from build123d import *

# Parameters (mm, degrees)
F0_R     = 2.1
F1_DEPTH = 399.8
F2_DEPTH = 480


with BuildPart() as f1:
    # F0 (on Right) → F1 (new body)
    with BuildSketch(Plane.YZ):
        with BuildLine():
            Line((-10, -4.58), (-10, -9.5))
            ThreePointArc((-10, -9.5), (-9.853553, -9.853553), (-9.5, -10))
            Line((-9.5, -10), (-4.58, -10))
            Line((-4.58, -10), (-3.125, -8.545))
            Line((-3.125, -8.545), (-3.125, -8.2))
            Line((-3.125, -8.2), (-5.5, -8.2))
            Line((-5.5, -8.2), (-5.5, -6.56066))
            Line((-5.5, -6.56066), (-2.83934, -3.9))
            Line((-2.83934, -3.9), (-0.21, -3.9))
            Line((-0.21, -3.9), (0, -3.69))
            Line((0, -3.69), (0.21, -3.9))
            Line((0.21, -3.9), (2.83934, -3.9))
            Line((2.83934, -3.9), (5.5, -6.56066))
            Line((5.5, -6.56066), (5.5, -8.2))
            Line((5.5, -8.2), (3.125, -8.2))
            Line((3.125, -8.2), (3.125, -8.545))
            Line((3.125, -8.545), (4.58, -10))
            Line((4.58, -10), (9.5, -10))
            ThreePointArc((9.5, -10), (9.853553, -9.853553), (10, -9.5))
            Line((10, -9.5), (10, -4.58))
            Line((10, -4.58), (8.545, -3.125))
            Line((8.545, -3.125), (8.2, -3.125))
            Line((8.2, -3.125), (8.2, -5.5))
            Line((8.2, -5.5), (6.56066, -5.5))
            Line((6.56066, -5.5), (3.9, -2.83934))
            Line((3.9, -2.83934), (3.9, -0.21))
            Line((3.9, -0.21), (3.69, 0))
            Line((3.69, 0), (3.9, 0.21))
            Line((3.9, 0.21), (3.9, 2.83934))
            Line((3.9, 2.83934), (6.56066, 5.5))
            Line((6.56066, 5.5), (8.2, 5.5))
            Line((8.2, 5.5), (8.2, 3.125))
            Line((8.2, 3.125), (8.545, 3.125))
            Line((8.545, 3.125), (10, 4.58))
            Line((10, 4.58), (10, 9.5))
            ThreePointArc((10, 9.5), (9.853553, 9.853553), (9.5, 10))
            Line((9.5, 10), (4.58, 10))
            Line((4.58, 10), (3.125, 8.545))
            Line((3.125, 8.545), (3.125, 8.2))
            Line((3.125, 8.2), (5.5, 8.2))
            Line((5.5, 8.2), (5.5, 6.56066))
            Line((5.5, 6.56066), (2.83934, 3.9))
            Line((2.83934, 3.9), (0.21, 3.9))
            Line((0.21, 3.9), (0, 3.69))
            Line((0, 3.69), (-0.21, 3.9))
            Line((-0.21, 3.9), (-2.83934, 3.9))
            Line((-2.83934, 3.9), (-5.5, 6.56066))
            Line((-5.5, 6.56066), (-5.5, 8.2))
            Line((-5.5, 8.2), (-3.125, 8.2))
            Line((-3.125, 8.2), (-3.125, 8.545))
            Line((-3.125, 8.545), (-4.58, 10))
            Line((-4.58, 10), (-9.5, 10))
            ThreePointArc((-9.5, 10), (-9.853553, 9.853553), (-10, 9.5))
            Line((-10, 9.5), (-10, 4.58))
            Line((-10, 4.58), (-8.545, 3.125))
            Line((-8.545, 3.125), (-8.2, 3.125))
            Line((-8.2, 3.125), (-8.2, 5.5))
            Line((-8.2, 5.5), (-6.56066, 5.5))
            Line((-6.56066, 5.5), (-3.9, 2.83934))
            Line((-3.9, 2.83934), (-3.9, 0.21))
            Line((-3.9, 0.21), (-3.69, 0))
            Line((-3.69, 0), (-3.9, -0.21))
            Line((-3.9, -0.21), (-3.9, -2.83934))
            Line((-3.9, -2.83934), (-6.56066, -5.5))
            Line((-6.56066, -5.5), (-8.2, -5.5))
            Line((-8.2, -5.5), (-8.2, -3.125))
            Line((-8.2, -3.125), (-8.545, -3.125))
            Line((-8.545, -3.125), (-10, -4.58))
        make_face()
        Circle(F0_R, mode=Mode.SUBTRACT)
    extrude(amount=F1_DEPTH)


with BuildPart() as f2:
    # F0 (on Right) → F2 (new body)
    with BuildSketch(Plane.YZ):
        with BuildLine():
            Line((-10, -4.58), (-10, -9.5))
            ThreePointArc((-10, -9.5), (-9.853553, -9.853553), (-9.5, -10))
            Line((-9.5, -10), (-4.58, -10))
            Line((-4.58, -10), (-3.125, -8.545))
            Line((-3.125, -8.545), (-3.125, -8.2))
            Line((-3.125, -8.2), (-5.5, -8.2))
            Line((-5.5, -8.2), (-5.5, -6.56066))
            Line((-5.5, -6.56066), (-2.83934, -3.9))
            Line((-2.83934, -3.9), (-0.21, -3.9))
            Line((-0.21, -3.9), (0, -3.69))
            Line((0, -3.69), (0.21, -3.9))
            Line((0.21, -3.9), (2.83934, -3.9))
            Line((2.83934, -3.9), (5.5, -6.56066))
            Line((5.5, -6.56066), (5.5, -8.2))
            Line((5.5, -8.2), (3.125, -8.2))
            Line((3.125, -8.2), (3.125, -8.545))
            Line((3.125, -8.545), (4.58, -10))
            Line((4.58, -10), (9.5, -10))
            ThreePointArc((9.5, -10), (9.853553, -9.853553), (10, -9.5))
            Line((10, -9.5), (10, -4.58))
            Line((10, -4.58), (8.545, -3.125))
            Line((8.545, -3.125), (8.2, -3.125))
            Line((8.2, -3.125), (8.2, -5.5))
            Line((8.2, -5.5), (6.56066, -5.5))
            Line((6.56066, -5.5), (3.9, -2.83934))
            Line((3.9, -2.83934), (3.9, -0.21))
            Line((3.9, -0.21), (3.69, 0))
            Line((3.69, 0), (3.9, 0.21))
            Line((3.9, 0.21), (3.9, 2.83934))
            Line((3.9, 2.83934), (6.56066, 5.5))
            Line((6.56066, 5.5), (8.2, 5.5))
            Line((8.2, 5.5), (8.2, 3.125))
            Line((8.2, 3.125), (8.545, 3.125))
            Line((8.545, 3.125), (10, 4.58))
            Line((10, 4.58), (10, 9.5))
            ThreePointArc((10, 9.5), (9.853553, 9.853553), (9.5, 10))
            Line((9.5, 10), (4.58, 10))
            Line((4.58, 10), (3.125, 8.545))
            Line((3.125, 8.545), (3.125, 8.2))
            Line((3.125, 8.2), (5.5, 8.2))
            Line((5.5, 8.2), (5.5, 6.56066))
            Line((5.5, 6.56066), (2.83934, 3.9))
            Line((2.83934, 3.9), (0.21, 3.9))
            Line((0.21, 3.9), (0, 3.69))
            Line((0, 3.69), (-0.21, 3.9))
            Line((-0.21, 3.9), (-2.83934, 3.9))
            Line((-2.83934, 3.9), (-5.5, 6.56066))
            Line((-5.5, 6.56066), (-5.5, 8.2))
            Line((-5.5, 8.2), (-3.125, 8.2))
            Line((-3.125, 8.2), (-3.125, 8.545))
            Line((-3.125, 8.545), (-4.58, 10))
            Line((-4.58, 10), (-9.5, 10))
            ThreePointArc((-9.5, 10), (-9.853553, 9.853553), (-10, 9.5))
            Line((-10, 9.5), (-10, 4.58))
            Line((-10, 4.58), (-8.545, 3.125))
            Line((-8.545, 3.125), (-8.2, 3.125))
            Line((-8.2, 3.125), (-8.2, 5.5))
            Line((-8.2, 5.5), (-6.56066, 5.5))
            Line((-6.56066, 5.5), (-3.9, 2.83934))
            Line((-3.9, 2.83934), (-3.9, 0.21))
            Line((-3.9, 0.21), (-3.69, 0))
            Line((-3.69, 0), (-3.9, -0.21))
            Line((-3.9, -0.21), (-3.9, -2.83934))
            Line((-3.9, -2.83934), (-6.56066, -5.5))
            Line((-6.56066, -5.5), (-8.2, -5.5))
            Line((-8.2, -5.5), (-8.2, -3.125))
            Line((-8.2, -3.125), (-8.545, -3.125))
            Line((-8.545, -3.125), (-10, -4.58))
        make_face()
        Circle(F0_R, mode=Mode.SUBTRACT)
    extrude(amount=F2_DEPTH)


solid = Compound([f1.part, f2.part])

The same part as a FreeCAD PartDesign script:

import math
import FreeCAD as App
import Part
import Sketcher

V = App.Vector
Q = App.Units.Quantity

doc = App.newDocument("Part")
body = doc.addObject("PartDesign::Body", "Body")

# Sketch on YZ plane
sketch1 = doc.addObject("Sketcher::SketchObject", "Sketch")
body.addObject(sketch1)
sketch1.AttachmentSupport = (doc.YZ_Plane, [""])
sketch1.MapMode = "FlatFace"
sketch1.addGeometry(Part.LineSegment(V(-10, -4.58, 0), V(-10, -9.5, 0)), False)
sketch1.addGeometry(Part.ArcOfCircle(Part.Circle(V(-9.5, -9.5, 0), V(0, 0, 1), 0.5), math.radians(-180), math.radians(-90)), False)
sketch1.addGeometry(Part.LineSegment(V(-9.5, -10, 0), V(-4.58, -10, 0)), False)
sketch1.addGeometry(Part.LineSegment(V(-4.58, -10, 0), V(-3.12, -8.54, 0)), False)
sketch1.addGeometry(Part.LineSegment(V(-3.12, -8.54, 0), V(-3.12, -8.2, 0)), False)
sketch1.addGeometry(Part.LineSegment(V(-3.12, -8.2, 0), V(-5.5, -8.2, 0)), False)
sketch1.addGeometry(Part.LineSegment(V(-5.5, -8.2, 0), V(-5.5, -6.56, 0)), False)
sketch1.addGeometry(Part.LineSegment(V(-5.5, -6.56, 0), V(-2.84, -3.9, 0)), False)
sketch1.addGeometry(Part.LineSegment(V(-2.84, -3.9, 0), V(-0.21, -3.9, 0)), False)
sketch1.addGeometry(Part.LineSegment(V(-0.21, -3.9, 0), V(0, -3.69, 0)), False)
sketch1.addGeometry(Part.LineSegment(V(0, -3.69, 0), V(0.21, -3.9, 0)), False)
sketch1.addGeometry(Part.LineSegment(V(0.21, -3.9, 0), V(2.84, -3.9, 0)), False)
sketch1.addGeometry(Part.LineSegment(V(2.84, -3.9, 0), V(5.5, -6.56, 0)), False)
sketch1.addGeometry(Part.LineSegment(V(5.5, -6.56, 0), V(5.5, -8.2, 0)), False)
sketch1.addGeometry(Part.LineSegment(V(5.5, -8.2, 0), V(3.12, -8.2, 0)), False)
sketch1.addGeometry(Part.LineSegment(V(3.12, -8.2, 0), V(3.12, -8.54, 0)), False)
sketch1.addGeometry(Part.LineSegment(V(3.12, -8.54, 0), V(4.58, -10, 0)), False)
sketch1.addGeometry(Part.LineSegment(V(4.58, -10, 0), V(9.5, -10, 0)), False)
sketch1.addGeometry(Part.ArcOfCircle(Part.Circle(V(9.5, -9.5, 0), V(0, 0, 1), 0.5), math.radians(-90), math.radians(0)), False)
sketch1.addGeometry(Part.LineSegment(V(10, -9.5, 0), V(10, -4.58, 0)), False)
sketch1.addGeometry(Part.LineSegment(V(10, -4.58, 0), V(8.54, -3.12, 0)), False)
sketch1.addGeometry(Part.LineSegment(V(8.54, -3.12, 0), V(8.2, -3.12, 0)), False)
sketch1.addGeometry(Part.LineSegment(V(8.2, -3.12, 0), V(8.2, -5.5, 0)), False)
sketch1.addGeometry(Part.LineSegment(V(8.2, -5.5, 0), V(6.56, -5.5, 0)), False)
sketch1.addGeometry(Part.LineSegment(V(6.56, -5.5, 0), V(3.9, -2.84, 0)), False)
sketch1.addGeometry(Part.LineSegment(V(3.9, -2.84, 0), V(3.9, -0.21, 0)), False)
sketch1.addGeometry(Part.LineSegment(V(3.9, -0.21, 0), V(3.69, 0, 0)), False)
sketch1.addGeometry(Part.LineSegment(V(3.69, 0, 0), V(3.9, 0.21, 0)), False)
sketch1.addGeometry(Part.LineSegment(V(3.9, 0.21, 0), V(3.9, 2.84, 0)), False)
sketch1.addGeometry(Part.LineSegment(V(3.9, 2.84, 0), V(6.56, 5.5, 0)), False)
sketch1.addGeometry(Part.LineSegment(V(6.56, 5.5, 0), V(8.2, 5.5, 0)), False)
sketch1.addGeometry(Part.LineSegment(V(8.2, 5.5, 0), V(8.2, 3.12, 0)), False)
sketch1.addGeometry(Part.LineSegment(V(8.2, 3.12, 0), V(8.54, 3.12, 0)), False)
sketch1.addGeometry(Part.LineSegment(V(8.54, 3.12, 0), V(10, 4.58, 0)), False)
sketch1.addGeometry(Part.LineSegment(V(10, 4.58, 0), V(10, 9.5, 0)), False)
sketch1.addGeometry(Part.ArcOfCircle(Part.Circle(V(9.5, 9.5, 0), V(0, 0, 1), 0.5), math.radians(0), math.radians(90)), False)
sketch1.addGeometry(Part.LineSegment(V(9.5, 10, 0), V(4.58, 10, 0)), False)
sketch1.addGeometry(Part.LineSegment(V(4.58, 10, 0), V(3.12, 8.54, 0)), False)
sketch1.addGeometry(Part.LineSegment(V(3.12, 8.54, 0), V(3.12, 8.2, 0)), False)
sketch1.addGeometry(Part.LineSegment(V(3.12, 8.2, 0), V(5.5, 8.2, 0)), False)
sketch1.addGeometry(Part.LineSegment(V(5.5, 8.2, 0), V(5.5, 6.56, 0)), False)
sketch1.addGeometry(Part.LineSegment(V(5.5, 6.56, 0), V(2.84, 3.9, 0)), False)
sketch1.addGeometry(Part.LineSegment(V(2.84, 3.9, 0), V(0.21, 3.9, 0)), False)
sketch1.addGeometry(Part.LineSegment(V(0.21, 3.9, 0), V(0, 3.69, 0)), False)
sketch1.addGeometry(Part.LineSegment(V(0, 3.69, 0), V(-0.21, 3.9, 0)), False)
sketch1.addGeometry(Part.LineSegment(V(-0.21, 3.9, 0), V(-2.84, 3.9, 0)), False)
sketch1.addGeometry(Part.LineSegment(V(-2.84, 3.9, 0), V(-5.5, 6.56, 0)), False)
sketch1.addGeometry(Part.LineSegment(V(-5.5, 6.56, 0), V(-5.5, 8.2, 0)), False)
sketch1.addGeometry(Part.LineSegment(V(-5.5, 8.2, 0), V(-3.12, 8.2, 0)), False)
sketch1.addGeometry(Part.LineSegment(V(-3.12, 8.2, 0), V(-3.12, 8.54, 0)), False)
sketch1.addGeometry(Part.LineSegment(V(-3.12, 8.54, 0), V(-4.58, 10, 0)), False)
sketch1.addGeometry(Part.LineSegment(V(-4.58, 10, 0), V(-9.5, 10, 0)), False)
sketch1.addGeometry(Part.ArcOfCircle(Part.Circle(V(-9.5, 9.5, 0), V(0, 0, 1), 0.5), math.radians(90), math.radians(180)), False)
sketch1.addGeometry(Part.LineSegment(V(-10, 9.5, 0), V(-10, 4.58, 0)), False)
sketch1.addGeometry(Part.LineSegment(V(-10, 4.58, 0), V(-8.54, 3.12, 0)), False)
sketch1.addGeometry(Part.LineSegment(V(-8.54, 3.12, 0), V(-8.2, 3.12, 0)), False)
sketch1.addGeometry(Part.LineSegment(V(-8.2, 3.12, 0), V(-8.2, 5.5, 0)), False)
sketch1.addGeometry(Part.LineSegment(V(-8.2, 5.5, 0), V(-6.56, 5.5, 0)), False)
sketch1.addGeometry(Part.LineSegment(V(-6.56, 5.5, 0), V(-3.9, 2.84, 0)), False)
sketch1.addGeometry(Part.LineSegment(V(-3.9, 2.84, 0), V(-3.9, 0.21, 0)), False)
sketch1.addGeometry(Part.LineSegment(V(-3.9, 0.21, 0), V(-3.69, 0, 0)), False)
sketch1.addGeometry(Part.LineSegment(V(-3.69, 0, 0), V(-3.9, -0.21, 0)), False)
sketch1.addGeometry(Part.LineSegment(V(-3.9, -0.21, 0), V(-3.9, -2.84, 0)), False)
sketch1.addGeometry(Part.LineSegment(V(-3.9, -2.84, 0), V(-6.56, -5.5, 0)), False)
sketch1.addGeometry(Part.LineSegment(V(-6.56, -5.5, 0), V(-8.2, -5.5, 0)), False)
sketch1.addGeometry(Part.LineSegment(V(-8.2, -5.5, 0), V(-8.2, -3.12, 0)), False)
sketch1.addGeometry(Part.LineSegment(V(-8.2, -3.12, 0), V(-8.54, -3.12, 0)), False)
sketch1.addGeometry(Part.LineSegment(V(-8.54, -3.12, 0), V(-10, -4.58, 0)), False)
sketch1.addGeometry(Part.Circle(V(0, 0, 0), V(0, 0, 1), 2.1), False)
sketch1.addConstraint(Sketcher.Constraint("Coincident", 0, 2, 1, 1))
sketch1.addConstraint(Sketcher.Constraint("Coincident", 1, 2, 2, 1))
sketch1.addConstraint(Sketcher.Constraint("Coincident", 2, 2, 3, 1))
sketch1.addConstraint(Sketcher.Constraint("Coincident", 3, 2, 4, 1))
sketch1.addConstraint(Sketcher.Constraint("Coincident", 4, 2, 5, 1))
sketch1.addConstraint(Sketcher.Constraint("Coincident", 5, 2, 6, 1))
sketch1.addConstraint(Sketcher.Constraint("Coincident", 6, 2, 7, 1))
sketch1.addConstraint(Sketcher.Constraint("Coincident", 7, 2, 8, 1))
sketch1.addConstraint(Sketcher.Constraint("Coincident", 8, 2, 9, 1))
sketch1.addConstraint(Sketcher.Constraint("Coincident", 9, 2, 10, 1))
sketch1.addConstraint(Sketcher.Constraint("Coincident", 10, 2, 11, 1))
sketch1.addConstraint(Sketcher.Constraint("Coincident", 11, 2, 12, 1))
sketch1.addConstraint(Sketcher.Constraint("Coincident", 12, 2, 13, 1))
sketch1.addConstraint(Sketcher.Constraint("Coincident", 13, 2, 14, 1))
sketch1.addConstraint(Sketcher.Constraint("Coincident", 14, 2, 15, 1))
sketch1.addConstraint(Sketcher.Constraint("Coincident", 15, 2, 16, 1))
sketch1.addConstraint(Sketcher.Constraint("Coincident", 16, 2, 17, 1))
sketch1.addConstraint(Sketcher.Constraint("Coincident", 17, 2, 18, 1))
sketch1.addConstraint(Sketcher.Constraint("Coincident", 18, 2, 19, 1))
sketch1.addConstraint(Sketcher.Constraint("Coincident", 19, 2, 20, 1))
sketch1.addConstraint(Sketcher.Constraint("Coincident", 20, 2, 21, 1))
sketch1.addConstraint(Sketcher.Constraint("Coincident", 21, 2, 22, 1))
sketch1.addConstraint(Sketcher.Constraint("Coincident", 22, 2, 23, 1))
sketch1.addConstraint(Sketcher.Constraint("Coincident", 23, 2, 24, 1))
sketch1.addConstraint(Sketcher.Constraint("Coincident", 24, 2, 25, 1))
sketch1.addConstraint(Sketcher.Constraint("Coincident", 25, 2, 26, 1))
sketch1.addConstraint(Sketcher.Constraint("Coincident", 26, 2, 27, 1))
sketch1.addConstraint(Sketcher.Constraint("Coincident", 27, 2, 28, 1))
sketch1.addConstraint(Sketcher.Constraint("Coincident", 28, 2, 29, 1))
sketch1.addConstraint(Sketcher.Constraint("Coincident", 29, 2, 30, 1))
sketch1.addConstraint(Sketcher.Constraint("Coincident", 30, 2, 31, 1))
sketch1.addConstraint(Sketcher.Constraint("Coincident", 31, 2, 32, 1))
sketch1.addConstraint(Sketcher.Constraint("Coincident", 32, 2, 33, 1))
sketch1.addConstraint(Sketcher.Constraint("Coincident", 33, 2, 34, 1))
sketch1.addConstraint(Sketcher.Constraint("Coincident", 34, 2, 35, 1))
sketch1.addConstraint(Sketcher.Constraint("Coincident", 35, 2, 36, 1))
sketch1.addConstraint(Sketcher.Constraint("Coincident", 36, 2, 37, 1))
sketch1.addConstraint(Sketcher.Constraint("Coincident", 37, 2, 38, 1))
sketch1.addConstraint(Sketcher.Constraint("Coincident", 38, 2, 39, 1))
sketch1.addConstraint(Sketcher.Constraint("Coincident", 39, 2, 40, 1))
sketch1.addConstraint(Sketcher.Constraint("Coincident", 40, 2, 41, 1))
sketch1.addConstraint(Sketcher.Constraint("Coincident", 41, 2, 42, 1))
sketch1.addConstraint(Sketcher.Constraint("Coincident", 42, 2, 43, 1))
sketch1.addConstraint(Sketcher.Constraint("Coincident", 43, 2, 44, 1))
sketch1.addConstraint(Sketcher.Constraint("Coincident", 44, 2, 45, 1))
sketch1.addConstraint(Sketcher.Constraint("Coincident", 45, 2, 46, 1))
sketch1.addConstraint(Sketcher.Constraint("Coincident", 46, 2, 47, 1))
sketch1.addConstraint(Sketcher.Constraint("Coincident", 47, 2, 48, 1))
sketch1.addConstraint(Sketcher.Constraint("Coincident", 48, 2, 49, 1))
sketch1.addConstraint(Sketcher.Constraint("Coincident", 49, 2, 50, 1))
sketch1.addConstraint(Sketcher.Constraint("Coincident", 50, 2, 51, 1))
sketch1.addConstraint(Sketcher.Constraint("Coincident", 51, 2, 52, 1))
sketch1.addConstraint(Sketcher.Constraint("Coincident", 52, 2, 53, 1))
sketch1.addConstraint(Sketcher.Constraint("Coincident", 53, 2, 54, 1))
sketch1.addConstraint(Sketcher.Constraint("Coincident", 54, 2, 55, 1))
sketch1.addConstraint(Sketcher.Constraint("Coincident", 55, 2, 56, 1))
sketch1.addConstraint(Sketcher.Constraint("Coincident", 56, 2, 57, 1))
sketch1.addConstraint(Sketcher.Constraint("Coincident", 57, 2, 58, 1))
sketch1.addConstraint(Sketcher.Constraint("Coincident", 58, 2, 59, 1))
sketch1.addConstraint(Sketcher.Constraint("Coincident", 59, 2, 60, 1))
sketch1.addConstraint(Sketcher.Constraint("Coincident", 60, 2, 61, 1))
sketch1.addConstraint(Sketcher.Constraint("Coincident", 61, 2, 62, 1))
sketch1.addConstraint(Sketcher.Constraint("Coincident", 62, 2, 63, 1))
sketch1.addConstraint(Sketcher.Constraint("Coincident", 63, 2, 64, 1))
sketch1.addConstraint(Sketcher.Constraint("Coincident", 64, 2, 65, 1))
sketch1.addConstraint(Sketcher.Constraint("Coincident", 65, 2, 66, 1))
sketch1.addConstraint(Sketcher.Constraint("Coincident", 66, 2, 67, 1))
sketch1.addConstraint(Sketcher.Constraint("Coincident", 67, 2, 0, 1))
sketch1.addConstraint(Sketcher.Constraint("Vertical", 0))
sketch1.addConstraint(Sketcher.Constraint("Horizontal", 2))
sketch1.addConstraint(Sketcher.Constraint("Vertical", 4))
sketch1.addConstraint(Sketcher.Constraint("Horizontal", 5))
sketch1.addConstraint(Sketcher.Constraint("Vertical", 6))
sketch1.addConstraint(Sketcher.Constraint("Horizontal", 8))
sketch1.addConstraint(Sketcher.Constraint("Horizontal", 11))
sketch1.addConstraint(Sketcher.Constraint("Vertical", 13))
sketch1.addConstraint(Sketcher.Constraint("Horizontal", 14))
sketch1.addConstraint(Sketcher.Constraint("Vertical", 15))
sketch1.addConstraint(Sketcher.Constraint("Horizontal", 17))
sketch1.addConstraint(Sketcher.Constraint("Vertical", 19))
sketch1.addConstraint(Sketcher.Constraint("Horizontal", 21))
sketch1.addConstraint(Sketcher.Constraint("Vertical", 22))
sketch1.addConstraint(Sketcher.Constraint("Horizontal", 23))
sketch1.addConstraint(Sketcher.Constraint("Vertical", 25))
sketch1.addConstraint(Sketcher.Constraint("Vertical", 28))
sketch1.addConstraint(Sketcher.Constraint("Horizontal", 30))
sketch1.addConstraint(Sketcher.Constraint("Vertical", 31))
sketch1.addConstraint(Sketcher.Constraint("Horizontal", 32))
sketch1.addConstraint(Sketcher.Constraint("Vertical", 34))
sketch1.addConstraint(Sketcher.Constraint("Horizontal", 36))
sketch1.addConstraint(Sketcher.Constraint("Vertical", 38))
sketch1.addConstraint(Sketcher.Constraint("Horizontal", 39))
sketch1.addConstraint(Sketcher.Constraint("Vertical", 40))
sketch1.addConstraint(Sketcher.Constraint("Horizontal", 42))
sketch1.addConstraint(Sketcher.Constraint("Horizontal", 45))
sketch1.addConstraint(Sketcher.Constraint("Vertical", 47))
sketch1.addConstraint(Sketcher.Constraint("Horizontal", 48))
sketch1.addConstraint(Sketcher.Constraint("Vertical", 49))
sketch1.addConstraint(Sketcher.Constraint("Horizontal", 51))
sketch1.addConstraint(Sketcher.Constraint("Vertical", 53))
sketch1.addConstraint(Sketcher.Constraint("Horizontal", 55))
sketch1.addConstraint(Sketcher.Constraint("Vertical", 56))
sketch1.addConstraint(Sketcher.Constraint("Horizontal", 57))
sketch1.addConstraint(Sketcher.Constraint("Vertical", 59))
sketch1.addConstraint(Sketcher.Constraint("Vertical", 62))
sketch1.addConstraint(Sketcher.Constraint("Horizontal", 64))
sketch1.addConstraint(Sketcher.Constraint("Vertical", 65))
sketch1.addConstraint(Sketcher.Constraint("Horizontal", 66))
sketch1.addConstraint(Sketcher.Constraint("Coincident", 68, 3, -1, 1))
sketch1.addConstraint(Sketcher.Constraint("Equal", 1, 18))
sketch1.addConstraint(Sketcher.Constraint("Equal", 18, 35))
sketch1.addConstraint(Sketcher.Constraint("Equal", 35, 52))
sketch1.addConstraint(Sketcher.Constraint("Symmetric", 1, 3, 35, 3, -1, 1))
sketch1.addConstraint(Sketcher.Constraint("Symmetric", 18, 3, 52, 3, -1, 1))
sketch1.addConstraint(Sketcher.Constraint("Symmetric", 3, 2, 37, 2, -1, 1))
sketch1.addConstraint(Sketcher.Constraint("Symmetric", 5, 2, 39, 2, -1, 1))
sketch1.addConstraint(Sketcher.Constraint("Symmetric", 7, 2, 41, 2, -1, 1))
sketch1.addConstraint(Sketcher.Constraint("Symmetric", 9, 2, 43, 2, -1, 1))
sketch1.addConstraint(Sketcher.Constraint("Symmetric", 10, 2, 44, 2, -1, 1))
sketch1.addConstraint(Sketcher.Constraint("Symmetric", 12, 2, 46, 2, -1, 1))
sketch1.addConstraint(Sketcher.Constraint("Symmetric", 14, 2, 48, 2, -1, 1))
sketch1.addConstraint(Sketcher.Constraint("Symmetric", 20, 2, 54, 2, -1, 1))
sketch1.addConstraint(Sketcher.Constraint("Symmetric", 22, 2, 56, 2, -1, 1))
sketch1.addConstraint(Sketcher.Constraint("Symmetric", 24, 2, 58, 2, -1, 1))
sketch1.addConstraint(Sketcher.Constraint("Symmetric", 26, 2, 60, 2, -1, 1))
sketch1.addConstraint(Sketcher.Constraint("Symmetric", 27, 2, 61, 2, -1, 1))
sketch1.addConstraint(Sketcher.Constraint("Symmetric", 29, 2, 63, 2, -1, 1))
sketch1.addConstraint(Sketcher.Constraint("Symmetric", 31, 2, 65, 2, -1, 1))
sketch1.addConstraint(Sketcher.Constraint("Symmetric", 1, 3, 18, 3, -2))
sketch1.addConstraint(Sketcher.Constraint("Symmetric", 8, 2, 10, 2, -2))
sketch1.addConstraint(Sketcher.Constraint("Symmetric", 6, 2, 12, 2, -2))
sketch1.addConstraint(Sketcher.Constraint("Symmetric", 4, 2, 14, 2, -2))
sketch1.addConstraint(Sketcher.Constraint("Symmetric", 32, 2, 54, 2, -2))
sketch1.addConstraint(Sketcher.Constraint("Symmetric", 30, 2, 56, 2, -2))
sketch1.addConstraint(Sketcher.Constraint("Symmetric", 28, 2, 58, 2, -2))
sketch1.addConstraint(Sketcher.Constraint("PointOnObject", 9, 2, -2))
sketch1.addConstraint(Sketcher.Constraint("PointOnObject", 26, 2, -1))
sketch1.addConstraint(Sketcher.Constraint("Parallel", 3, 7))
sketch1.addConstraint(Sketcher.Constraint("Parallel", 7, 9))
sketch1.addConstraint(Sketcher.Constraint("Perpendicular", 9, 10))
sketch1.addConstraint(Sketcher.Constraint("Parallel", 10, 12))
sketch1.addConstraint(Sketcher.Constraint("Parallel", 12, 16))
sketch1.addConstraint(Sketcher.Constraint("Parallel", 16, 20))
sketch1.addConstraint(Sketcher.Constraint("Parallel", 20, 24))
sketch1.addConstraint(Sketcher.Constraint("Parallel", 24, 26))
sketch1.addConstraint(Sketcher.Constraint("Perpendicular", 26, 27))
sketch1.addConstraint(Sketcher.Constraint("Parallel", 27, 29))
sketch1.addConstraint(Sketcher.Constraint("Parallel", 29, 33))
sketch1.addConstraint(Sketcher.Constraint("Parallel", 33, 37))
sketch1.addConstraint(Sketcher.Constraint("Parallel", 37, 41))
sketch1.addConstraint(Sketcher.Constraint("Parallel", 41, 43))
sketch1.addConstraint(Sketcher.Constraint("Parallel", 44, 46))
sketch1.addConstraint(Sketcher.Constraint("Parallel", 46, 50))
sketch1.addConstraint(Sketcher.Constraint("Parallel", 50, 54))
sketch1.addConstraint(Sketcher.Constraint("Parallel", 54, 58))
sketch1.addConstraint(Sketcher.Constraint("Parallel", 58, 60))
sketch1.addConstraint(Sketcher.Constraint("Parallel", 61, 63))
sketch1.addConstraint(Sketcher.Constraint("Parallel", 63, 67))
sketch1.addConstraint(Sketcher.Constraint("Horizontal", 18, 3, 0, 2))
sketch1.addConstraint(Sketcher.Constraint("Horizontal", 3, 2, 15, 2))
sketch1.addConstraint(Sketcher.Constraint("Horizontal", 0, 2, 18, 2))
sketch1.addConstraint(Sketcher.Constraint("Horizontal", 52, 3, 34, 2))
sketch1.addConstraint(Sketcher.Constraint("Horizontal", 37, 2, 49, 2))
sketch1.addConstraint(Sketcher.Constraint("Horizontal", 34, 2, 52, 2))
sketch1.addConstraint(Sketcher.Constraint("Horizontal", 19, 2, 67, 2))
sketch1.addConstraint(Sketcher.Constraint("Vertical", 52, 3, 1, 2))
sketch1.addConstraint(Sketcher.Constraint("Vertical", 35, 3, 17, 2))
sketch1.addConstraint(Sketcher.Constraint("Vertical", 17, 2, 35, 2))
sketch1.addConstraint(Sketcher.Constraint("Vertical", 1, 2, 51, 2))
sketch1.addConstraint(Sketcher.Constraint("Equal", 51, 0))
sketch1.addConstraint(Sketcher.Constraint("Equal", 66, 4))
sketch1.addConstraint(Sketcher.Constraint("Equal", 64, 6))
sketch1.addConstraint(Sketcher.Constraint("Equal", 48, 22))
sketch1.addConstraint(Sketcher.Constraint("Equal", 45, 25))
sketch1.addConstraint(Sketcher.Constraint("Equal", 16, 20))
sketch1.addConstraint(Sketcher.Constraint("Equal", 12, 24))
sketch1.addConstraint(Sketcher.Constraint("Equal", 10, 26))
sketch1.addConstraint(Sketcher.Constraint("Diameter", 68, Q("4.2 mm")))
sketch1.addConstraint(Sketcher.Constraint("Radius", 1, Q("0.500001 mm")))
sketch1.addConstraint(Sketcher.Constraint("DistanceX", 0, 2, -1, 1, Q("10 mm")))
sketch1.addConstraint(Sketcher.Constraint("DistanceX", 2, 1, 2, 2, Q("4.92 mm")))
sketch1.addConstraint(Sketcher.Constraint("DistanceY", 4, 2, -1, 1, Q("8.2 mm")))
sketch1.addConstraint(Sketcher.Constraint("DistanceX", 5, 2, -1, 1, Q("5.5 mm")))
sketch1.addConstraint(Sketcher.Constraint("DistanceY", 7, 2, -1, 1, Q("3.9 mm")))
sketch1.addConstraint(Sketcher.Constraint("DistanceX", 5, 2, 5, 1, Q("2.375 mm")))
sketch1.addConstraint(Sketcher.Constraint("DistanceX", 8, 2, -1, 1, Q("0.21 mm")))
sketch1.addConstraint(Sketcher.Constraint("DistanceX", 8, 1, 8, 2, Q("2.62934 mm")))
pad1 = doc.addObject("PartDesign::Pad", "Pad")
body.addObject(pad1)
pad1.Profile = sketch1
pad1.Length = 399.8
body2 = doc.addObject("PartDesign::Body", "Body001")

# Sketch on YZ plane
sketch2 = doc.addObject("Sketcher::SketchObject", "Sketch001")
body2.addObject(sketch2)
sketch2.AttachmentSupport = (doc.getObject("YZ_Plane001"), [""])
sketch2.MapMode = "FlatFace"
sketch2.addGeometry(Part.LineSegment(V(-10, -4.58, 0), V(-10, -9.5, 0)), False)
sketch2.addGeometry(Part.ArcOfCircle(Part.Circle(V(-9.5, -9.5, 0), V(0, 0, 1), 0.5), math.radians(-180), math.radians(-90)), False)
sketch2.addGeometry(Part.LineSegment(V(-9.5, -10, 0), V(-4.58, -10, 0)), False)
sketch2.addGeometry(Part.LineSegment(V(-4.58, -10, 0), V(-3.12, -8.54, 0)), False)
sketch2.addGeometry(Part.LineSegment(V(-3.12, -8.54, 0), V(-3.12, -8.2, 0)), False)
sketch2.addGeometry(Part.LineSegment(V(-3.12, -8.2, 0), V(-5.5, -8.2, 0)), False)
sketch2.addGeometry(Part.LineSegment(V(-5.5, -8.2, 0), V(-5.5, -6.56, 0)), False)
sketch2.addGeometry(Part.LineSegment(V(-5.5, -6.56, 0), V(-2.84, -3.9, 0)), False)
sketch2.addGeometry(Part.LineSegment(V(-2.84, -3.9, 0), V(-0.21, -3.9, 0)), False)
sketch2.addGeometry(Part.LineSegment(V(-0.21, -3.9, 0), V(0, -3.69, 0)), False)
sketch2.addGeometry(Part.LineSegment(V(0, -3.69, 0), V(0.21, -3.9, 0)), False)
sketch2.addGeometry(Part.LineSegment(V(0.21, -3.9, 0), V(2.84, -3.9, 0)), False)
sketch2.addGeometry(Part.LineSegment(V(2.84, -3.9, 0), V(5.5, -6.56, 0)), False)
sketch2.addGeometry(Part.LineSegment(V(5.5, -6.56, 0), V(5.5, -8.2, 0)), False)
sketch2.addGeometry(Part.LineSegment(V(5.5, -8.2, 0), V(3.12, -8.2, 0)), False)
sketch2.addGeometry(Part.LineSegment(V(3.12, -8.2, 0), V(3.12, -8.54, 0)), False)
sketch2.addGeometry(Part.LineSegment(V(3.12, -8.54, 0), V(4.58, -10, 0)), False)
sketch2.addGeometry(Part.LineSegment(V(4.58, -10, 0), V(9.5, -10, 0)), False)
sketch2.addGeometry(Part.ArcOfCircle(Part.Circle(V(9.5, -9.5, 0), V(0, 0, 1), 0.5), math.radians(-90), math.radians(0)), False)
sketch2.addGeometry(Part.LineSegment(V(10, -9.5, 0), V(10, -4.58, 0)), False)
sketch2.addGeometry(Part.LineSegment(V(10, -4.58, 0), V(8.54, -3.12, 0)), False)
sketch2.addGeometry(Part.LineSegment(V(8.54, -3.12, 0), V(8.2, -3.12, 0)), False)
sketch2.addGeometry(Part.LineSegment(V(8.2, -3.12, 0), V(8.2, -5.5, 0)), False)
sketch2.addGeometry(Part.LineSegment(V(8.2, -5.5, 0), V(6.56, -5.5, 0)), False)
sketch2.addGeometry(Part.LineSegment(V(6.56, -5.5, 0), V(3.9, -2.84, 0)), False)
sketch2.addGeometry(Part.LineSegment(V(3.9, -2.84, 0), V(3.9, -0.21, 0)), False)
sketch2.addGeometry(Part.LineSegment(V(3.9, -0.21, 0), V(3.69, 0, 0)), False)
sketch2.addGeometry(Part.LineSegment(V(3.69, 0, 0), V(3.9, 0.21, 0)), False)
sketch2.addGeometry(Part.LineSegment(V(3.9, 0.21, 0), V(3.9, 2.84, 0)), False)
sketch2.addGeometry(Part.LineSegment(V(3.9, 2.84, 0), V(6.56, 5.5, 0)), False)
sketch2.addGeometry(Part.LineSegment(V(6.56, 5.5, 0), V(8.2, 5.5, 0)), False)
sketch2.addGeometry(Part.LineSegment(V(8.2, 5.5, 0), V(8.2, 3.12, 0)), False)
sketch2.addGeometry(Part.LineSegment(V(8.2, 3.12, 0), V(8.54, 3.12, 0)), False)
sketch2.addGeometry(Part.LineSegment(V(8.54, 3.12, 0), V(10, 4.58, 0)), False)
sketch2.addGeometry(Part.LineSegment(V(10, 4.58, 0), V(10, 9.5, 0)), False)
sketch2.addGeometry(Part.ArcOfCircle(Part.Circle(V(9.5, 9.5, 0), V(0, 0, 1), 0.5), math.radians(0), math.radians(90)), False)
sketch2.addGeometry(Part.LineSegment(V(9.5, 10, 0), V(4.58, 10, 0)), False)
sketch2.addGeometry(Part.LineSegment(V(4.58, 10, 0), V(3.12, 8.54, 0)), False)
sketch2.addGeometry(Part.LineSegment(V(3.12, 8.54, 0), V(3.12, 8.2, 0)), False)
sketch2.addGeometry(Part.LineSegment(V(3.12, 8.2, 0), V(5.5, 8.2, 0)), False)
sketch2.addGeometry(Part.LineSegment(V(5.5, 8.2, 0), V(5.5, 6.56, 0)), False)
sketch2.addGeometry(Part.LineSegment(V(5.5, 6.56, 0), V(2.84, 3.9, 0)), False)
sketch2.addGeometry(Part.LineSegment(V(2.84, 3.9, 0), V(0.21, 3.9, 0)), False)
sketch2.addGeometry(Part.LineSegment(V(0.21, 3.9, 0), V(0, 3.69, 0)), False)
sketch2.addGeometry(Part.LineSegment(V(0, 3.69, 0), V(-0.21, 3.9, 0)), False)
sketch2.addGeometry(Part.LineSegment(V(-0.21, 3.9, 0), V(-2.84, 3.9, 0)), False)
sketch2.addGeometry(Part.LineSegment(V(-2.84, 3.9, 0), V(-5.5, 6.56, 0)), False)
sketch2.addGeometry(Part.LineSegment(V(-5.5, 6.56, 0), V(-5.5, 8.2, 0)), False)
sketch2.addGeometry(Part.LineSegment(V(-5.5, 8.2, 0), V(-3.12, 8.2, 0)), False)
sketch2.addGeometry(Part.LineSegment(V(-3.12, 8.2, 0), V(-3.12, 8.54, 0)), False)
sketch2.addGeometry(Part.LineSegment(V(-3.12, 8.54, 0), V(-4.58, 10, 0)), False)
sketch2.addGeometry(Part.LineSegment(V(-4.58, 10, 0), V(-9.5, 10, 0)), False)
sketch2.addGeometry(Part.ArcOfCircle(Part.Circle(V(-9.5, 9.5, 0), V(0, 0, 1), 0.5), math.radians(90), math.radians(180)), False)
sketch2.addGeometry(Part.LineSegment(V(-10, 9.5, 0), V(-10, 4.58, 0)), False)
sketch2.addGeometry(Part.LineSegment(V(-10, 4.58, 0), V(-8.54, 3.12, 0)), False)
sketch2.addGeometry(Part.LineSegment(V(-8.54, 3.12, 0), V(-8.2, 3.12, 0)), False)
sketch2.addGeometry(Part.LineSegment(V(-8.2, 3.12, 0), V(-8.2, 5.5, 0)), False)
sketch2.addGeometry(Part.LineSegment(V(-8.2, 5.5, 0), V(-6.56, 5.5, 0)), False)
sketch2.addGeometry(Part.LineSegment(V(-6.56, 5.5, 0), V(-3.9, 2.84, 0)), False)
sketch2.addGeometry(Part.LineSegment(V(-3.9, 2.84, 0), V(-3.9, 0.21, 0)), False)
sketch2.addGeometry(Part.LineSegment(V(-3.9, 0.21, 0), V(-3.69, 0, 0)), False)
sketch2.addGeometry(Part.LineSegment(V(-3.69, 0, 0), V(-3.9, -0.21, 0)), False)
sketch2.addGeometry(Part.LineSegment(V(-3.9, -0.21, 0), V(-3.9, -2.84, 0)), False)
sketch2.addGeometry(Part.LineSegment(V(-3.9, -2.84, 0), V(-6.56, -5.5, 0)), False)
sketch2.addGeometry(Part.LineSegment(V(-6.56, -5.5, 0), V(-8.2, -5.5, 0)), False)
sketch2.addGeometry(Part.LineSegment(V(-8.2, -5.5, 0), V(-8.2, -3.12, 0)), False)
sketch2.addGeometry(Part.LineSegment(V(-8.2, -3.12, 0), V(-8.54, -3.12, 0)), False)
sketch2.addGeometry(Part.LineSegment(V(-8.54, -3.12, 0), V(-10, -4.58, 0)), False)
sketch2.addGeometry(Part.Circle(V(0, 0, 0), V(0, 0, 1), 2.1), False)
sketch2.addConstraint(Sketcher.Constraint("Coincident", 0, 2, 1, 1))
sketch2.addConstraint(Sketcher.Constraint("Coincident", 1, 2, 2, 1))
sketch2.addConstraint(Sketcher.Constraint("Coincident", 2, 2, 3, 1))
sketch2.addConstraint(Sketcher.Constraint("Coincident", 3, 2, 4, 1))
sketch2.addConstraint(Sketcher.Constraint("Coincident", 4, 2, 5, 1))
sketch2.addConstraint(Sketcher.Constraint("Coincident", 5, 2, 6, 1))
sketch2.addConstraint(Sketcher.Constraint("Coincident", 6, 2, 7, 1))
sketch2.addConstraint(Sketcher.Constraint("Coincident", 7, 2, 8, 1))
sketch2.addConstraint(Sketcher.Constraint("Coincident", 8, 2, 9, 1))
sketch2.addConstraint(Sketcher.Constraint("Coincident", 9, 2, 10, 1))
sketch2.addConstraint(Sketcher.Constraint("Coincident", 10, 2, 11, 1))
sketch2.addConstraint(Sketcher.Constraint("Coincident", 11, 2, 12, 1))
sketch2.addConstraint(Sketcher.Constraint("Coincident", 12, 2, 13, 1))
sketch2.addConstraint(Sketcher.Constraint("Coincident", 13, 2, 14, 1))
sketch2.addConstraint(Sketcher.Constraint("Coincident", 14, 2, 15, 1))
sketch2.addConstraint(Sketcher.Constraint("Coincident", 15, 2, 16, 1))
sketch2.addConstraint(Sketcher.Constraint("Coincident", 16, 2, 17, 1))
sketch2.addConstraint(Sketcher.Constraint("Coincident", 17, 2, 18, 1))
sketch2.addConstraint(Sketcher.Constraint("Coincident", 18, 2, 19, 1))
sketch2.addConstraint(Sketcher.Constraint("Coincident", 19, 2, 20, 1))
sketch2.addConstraint(Sketcher.Constraint("Coincident", 20, 2, 21, 1))
sketch2.addConstraint(Sketcher.Constraint("Coincident", 21, 2, 22, 1))
sketch2.addConstraint(Sketcher.Constraint("Coincident", 22, 2, 23, 1))
sketch2.addConstraint(Sketcher.Constraint("Coincident", 23, 2, 24, 1))
sketch2.addConstraint(Sketcher.Constraint("Coincident", 24, 2, 25, 1))
sketch2.addConstraint(Sketcher.Constraint("Coincident", 25, 2, 26, 1))
sketch2.addConstraint(Sketcher.Constraint("Coincident", 26, 2, 27, 1))
sketch2.addConstraint(Sketcher.Constraint("Coincident", 27, 2, 28, 1))
sketch2.addConstraint(Sketcher.Constraint("Coincident", 28, 2, 29, 1))
sketch2.addConstraint(Sketcher.Constraint("Coincident", 29, 2, 30, 1))
sketch2.addConstraint(Sketcher.Constraint("Coincident", 30, 2, 31, 1))
sketch2.addConstraint(Sketcher.Constraint("Coincident", 31, 2, 32, 1))
sketch2.addConstraint(Sketcher.Constraint("Coincident", 32, 2, 33, 1))
sketch2.addConstraint(Sketcher.Constraint("Coincident", 33, 2, 34, 1))
sketch2.addConstraint(Sketcher.Constraint("Coincident", 34, 2, 35, 1))
sketch2.addConstraint(Sketcher.Constraint("Coincident", 35, 2, 36, 1))
sketch2.addConstraint(Sketcher.Constraint("Coincident", 36, 2, 37, 1))
sketch2.addConstraint(Sketcher.Constraint("Coincident", 37, 2, 38, 1))
sketch2.addConstraint(Sketcher.Constraint("Coincident", 38, 2, 39, 1))
sketch2.addConstraint(Sketcher.Constraint("Coincident", 39, 2, 40, 1))
sketch2.addConstraint(Sketcher.Constraint("Coincident", 40, 2, 41, 1))
sketch2.addConstraint(Sketcher.Constraint("Coincident", 41, 2, 42, 1))
sketch2.addConstraint(Sketcher.Constraint("Coincident", 42, 2, 43, 1))
sketch2.addConstraint(Sketcher.Constraint("Coincident", 43, 2, 44, 1))
sketch2.addConstraint(Sketcher.Constraint("Coincident", 44, 2, 45, 1))
sketch2.addConstraint(Sketcher.Constraint("Coincident", 45, 2, 46, 1))
sketch2.addConstraint(Sketcher.Constraint("Coincident", 46, 2, 47, 1))
sketch2.addConstraint(Sketcher.Constraint("Coincident", 47, 2, 48, 1))
sketch2.addConstraint(Sketcher.Constraint("Coincident", 48, 2, 49, 1))
sketch2.addConstraint(Sketcher.Constraint("Coincident", 49, 2, 50, 1))
sketch2.addConstraint(Sketcher.Constraint("Coincident", 50, 2, 51, 1))
sketch2.addConstraint(Sketcher.Constraint("Coincident", 51, 2, 52, 1))
sketch2.addConstraint(Sketcher.Constraint("Coincident", 52, 2, 53, 1))
sketch2.addConstraint(Sketcher.Constraint("Coincident", 53, 2, 54, 1))
sketch2.addConstraint(Sketcher.Constraint("Coincident", 54, 2, 55, 1))
sketch2.addConstraint(Sketcher.Constraint("Coincident", 55, 2, 56, 1))
sketch2.addConstraint(Sketcher.Constraint("Coincident", 56, 2, 57, 1))
sketch2.addConstraint(Sketcher.Constraint("Coincident", 57, 2, 58, 1))
sketch2.addConstraint(Sketcher.Constraint("Coincident", 58, 2, 59, 1))
sketch2.addConstraint(Sketcher.Constraint("Coincident", 59, 2, 60, 1))
sketch2.addConstraint(Sketcher.Constraint("Coincident", 60, 2, 61, 1))
sketch2.addConstraint(Sketcher.Constraint("Coincident", 61, 2, 62, 1))
sketch2.addConstraint(Sketcher.Constraint("Coincident", 62, 2, 63, 1))
sketch2.addConstraint(Sketcher.Constraint("Coincident", 63, 2, 64, 1))
sketch2.addConstraint(Sketcher.Constraint("Coincident", 64, 2, 65, 1))
sketch2.addConstraint(Sketcher.Constraint("Coincident", 65, 2, 66, 1))
sketch2.addConstraint(Sketcher.Constraint("Coincident", 66, 2, 67, 1))
sketch2.addConstraint(Sketcher.Constraint("Coincident", 67, 2, 0, 1))
sketch2.addConstraint(Sketcher.Constraint("Vertical", 0))
sketch2.addConstraint(Sketcher.Constraint("Horizontal", 2))
sketch2.addConstraint(Sketcher.Constraint("Vertical", 4))
sketch2.addConstraint(Sketcher.Constraint("Horizontal", 5))
sketch2.addConstraint(Sketcher.Constraint("Vertical", 6))
sketch2.addConstraint(Sketcher.Constraint("Horizontal", 8))
sketch2.addConstraint(Sketcher.Constraint("Horizontal", 11))
sketch2.addConstraint(Sketcher.Constraint("Vertical", 13))
sketch2.addConstraint(Sketcher.Constraint("Horizontal", 14))
sketch2.addConstraint(Sketcher.Constraint("Vertical", 15))
sketch2.addConstraint(Sketcher.Constraint("Horizontal", 17))
sketch2.addConstraint(Sketcher.Constraint("Vertical", 19))
sketch2.addConstraint(Sketcher.Constraint("Horizontal", 21))
sketch2.addConstraint(Sketcher.Constraint("Vertical", 22))
sketch2.addConstraint(Sketcher.Constraint("Horizontal", 23))
sketch2.addConstraint(Sketcher.Constraint("Vertical", 25))
sketch2.addConstraint(Sketcher.Constraint("Vertical", 28))
sketch2.addConstraint(Sketcher.Constraint("Horizontal", 30))
sketch2.addConstraint(Sketcher.Constraint("Vertical", 31))
sketch2.addConstraint(Sketcher.Constraint("Horizontal", 32))
sketch2.addConstraint(Sketcher.Constraint("Vertical", 34))
sketch2.addConstraint(Sketcher.Constraint("Horizontal", 36))
sketch2.addConstraint(Sketcher.Constraint("Vertical", 38))
sketch2.addConstraint(Sketcher.Constraint("Horizontal", 39))
sketch2.addConstraint(Sketcher.Constraint("Vertical", 40))
sketch2.addConstraint(Sketcher.Constraint("Horizontal", 42))
sketch2.addConstraint(Sketcher.Constraint("Horizontal", 45))
sketch2.addConstraint(Sketcher.Constraint("Vertical", 47))
sketch2.addConstraint(Sketcher.Constraint("Horizontal", 48))
sketch2.addConstraint(Sketcher.Constraint("Vertical", 49))
sketch2.addConstraint(Sketcher.Constraint("Horizontal", 51))
sketch2.addConstraint(Sketcher.Constraint("Vertical", 53))
sketch2.addConstraint(Sketcher.Constraint("Horizontal", 55))
sketch2.addConstraint(Sketcher.Constraint("Vertical", 56))
sketch2.addConstraint(Sketcher.Constraint("Horizontal", 57))
sketch2.addConstraint(Sketcher.Constraint("Vertical", 59))
sketch2.addConstraint(Sketcher.Constraint("Vertical", 62))
sketch2.addConstraint(Sketcher.Constraint("Horizontal", 64))
sketch2.addConstraint(Sketcher.Constraint("Vertical", 65))
sketch2.addConstraint(Sketcher.Constraint("Horizontal", 66))
sketch2.addConstraint(Sketcher.Constraint("Coincident", 68, 3, -1, 1))
sketch2.addConstraint(Sketcher.Constraint("Equal", 1, 18))
sketch2.addConstraint(Sketcher.Constraint("Equal", 18, 35))
sketch2.addConstraint(Sketcher.Constraint("Equal", 35, 52))
sketch2.addConstraint(Sketcher.Constraint("Symmetric", 1, 3, 35, 3, -1, 1))
sketch2.addConstraint(Sketcher.Constraint("Symmetric", 18, 3, 52, 3, -1, 1))
sketch2.addConstraint(Sketcher.Constraint("Symmetric", 3, 2, 37, 2, -1, 1))
sketch2.addConstraint(Sketcher.Constraint("Symmetric", 5, 2, 39, 2, -1, 1))
sketch2.addConstraint(Sketcher.Constraint("Symmetric", 7, 2, 41, 2, -1, 1))
sketch2.addConstraint(Sketcher.Constraint("Symmetric", 9, 2, 43, 2, -1, 1))
sketch2.addConstraint(Sketcher.Constraint("Symmetric", 10, 2, 44, 2, -1, 1))
sketch2.addConstraint(Sketcher.Constraint("Symmetric", 12, 2, 46, 2, -1, 1))
sketch2.addConstraint(Sketcher.Constraint("Symmetric", 14, 2, 48, 2, -1, 1))
sketch2.addConstraint(Sketcher.Constraint("Symmetric", 20, 2, 54, 2, -1, 1))
sketch2.addConstraint(Sketcher.Constraint("Symmetric", 22, 2, 56, 2, -1, 1))
sketch2.addConstraint(Sketcher.Constraint("Symmetric", 24, 2, 58, 2, -1, 1))
sketch2.addConstraint(Sketcher.Constraint("Symmetric", 26, 2, 60, 2, -1, 1))
sketch2.addConstraint(Sketcher.Constraint("Symmetric", 27, 2, 61, 2, -1, 1))
sketch2.addConstraint(Sketcher.Constraint("Symmetric", 29, 2, 63, 2, -1, 1))
sketch2.addConstraint(Sketcher.Constraint("Symmetric", 31, 2, 65, 2, -1, 1))
sketch2.addConstraint(Sketcher.Constraint("Symmetric", 1, 3, 18, 3, -2))
sketch2.addConstraint(Sketcher.Constraint("Symmetric", 8, 2, 10, 2, -2))
sketch2.addConstraint(Sketcher.Constraint("Symmetric", 6, 2, 12, 2, -2))
sketch2.addConstraint(Sketcher.Constraint("Symmetric", 4, 2, 14, 2, -2))
sketch2.addConstraint(Sketcher.Constraint("Symmetric", 32, 2, 54, 2, -2))
sketch2.addConstraint(Sketcher.Constraint("Symmetric", 30, 2, 56, 2, -2))
sketch2.addConstraint(Sketcher.Constraint("Symmetric", 28, 2, 58, 2, -2))
sketch2.addConstraint(Sketcher.Constraint("PointOnObject", 9, 2, -2))
sketch2.addConstraint(Sketcher.Constraint("PointOnObject", 26, 2, -1))
sketch2.addConstraint(Sketcher.Constraint("Parallel", 3, 7))
sketch2.addConstraint(Sketcher.Constraint("Parallel", 7, 9))
sketch2.addConstraint(Sketcher.Constraint("Perpendicular", 9, 10))
sketch2.addConstraint(Sketcher.Constraint("Parallel", 10, 12))
sketch2.addConstraint(Sketcher.Constraint("Parallel", 12, 16))
sketch2.addConstraint(Sketcher.Constraint("Parallel", 16, 20))
sketch2.addConstraint(Sketcher.Constraint("Parallel", 20, 24))
sketch2.addConstraint(Sketcher.Constraint("Parallel", 24, 26))
sketch2.addConstraint(Sketcher.Constraint("Perpendicular", 26, 27))
sketch2.addConstraint(Sketcher.Constraint("Parallel", 27, 29))
sketch2.addConstraint(Sketcher.Constraint("Parallel", 29, 33))
sketch2.addConstraint(Sketcher.Constraint("Parallel", 33, 37))
sketch2.addConstraint(Sketcher.Constraint("Parallel", 37, 41))
sketch2.addConstraint(Sketcher.Constraint("Parallel", 41, 43))
sketch2.addConstraint(Sketcher.Constraint("Parallel", 44, 46))
sketch2.addConstraint(Sketcher.Constraint("Parallel", 46, 50))
sketch2.addConstraint(Sketcher.Constraint("Parallel", 50, 54))
sketch2.addConstraint(Sketcher.Constraint("Parallel", 54, 58))
sketch2.addConstraint(Sketcher.Constraint("Parallel", 58, 60))
sketch2.addConstraint(Sketcher.Constraint("Parallel", 61, 63))
sketch2.addConstraint(Sketcher.Constraint("Parallel", 63, 67))
sketch2.addConstraint(Sketcher.Constraint("Horizontal", 18, 3, 0, 2))
sketch2.addConstraint(Sketcher.Constraint("Horizontal", 3, 2, 15, 2))
sketch2.addConstraint(Sketcher.Constraint("Horizontal", 0, 2, 18, 2))
sketch2.addConstraint(Sketcher.Constraint("Horizontal", 52, 3, 34, 2))
sketch2.addConstraint(Sketcher.Constraint("Horizontal", 37, 2, 49, 2))
sketch2.addConstraint(Sketcher.Constraint("Horizontal", 34, 2, 52, 2))
sketch2.addConstraint(Sketcher.Constraint("Horizontal", 19, 2, 67, 2))
sketch2.addConstraint(Sketcher.Constraint("Vertical", 52, 3, 1, 2))
sketch2.addConstraint(Sketcher.Constraint("Vertical", 35, 3, 17, 2))
sketch2.addConstraint(Sketcher.Constraint("Vertical", 17, 2, 35, 2))
sketch2.addConstraint(Sketcher.Constraint("Vertical", 1, 2, 51, 2))
sketch2.addConstraint(Sketcher.Constraint("Equal", 51, 0))
sketch2.addConstraint(Sketcher.Constraint("Equal", 66, 4))
sketch2.addConstraint(Sketcher.Constraint("Equal", 64, 6))
sketch2.addConstraint(Sketcher.Constraint("Equal", 48, 22))
sketch2.addConstraint(Sketcher.Constraint("Equal", 45, 25))
sketch2.addConstraint(Sketcher.Constraint("Equal", 16, 20))
sketch2.addConstraint(Sketcher.Constraint("Equal", 12, 24))
sketch2.addConstraint(Sketcher.Constraint("Equal", 10, 26))
sketch2.addConstraint(Sketcher.Constraint("Diameter", 68, Q("4.2 mm")))
sketch2.addConstraint(Sketcher.Constraint("Radius", 1, Q("0.500001 mm")))
sketch2.addConstraint(Sketcher.Constraint("DistanceX", 0, 2, -1, 1, Q("10 mm")))
sketch2.addConstraint(Sketcher.Constraint("DistanceX", 2, 1, 2, 2, Q("4.92 mm")))
sketch2.addConstraint(Sketcher.Constraint("DistanceY", 4, 2, -1, 1, Q("8.2 mm")))
sketch2.addConstraint(Sketcher.Constraint("DistanceX", 5, 2, -1, 1, Q("5.5 mm")))
sketch2.addConstraint(Sketcher.Constraint("DistanceY", 7, 2, -1, 1, Q("3.9 mm")))
sketch2.addConstraint(Sketcher.Constraint("DistanceX", 5, 2, 5, 1, Q("2.375 mm")))
sketch2.addConstraint(Sketcher.Constraint("DistanceX", 8, 2, -1, 1, Q("0.21 mm")))
sketch2.addConstraint(Sketcher.Constraint("DistanceX", 8, 1, 8, 2, Q("2.62934 mm")))
pad2 = doc.addObject("PartDesign::Pad", "Pad001")
body2.addObject(pad2)
pad2.Profile = sketch2
pad2.Length = 480

doc.recompute()
